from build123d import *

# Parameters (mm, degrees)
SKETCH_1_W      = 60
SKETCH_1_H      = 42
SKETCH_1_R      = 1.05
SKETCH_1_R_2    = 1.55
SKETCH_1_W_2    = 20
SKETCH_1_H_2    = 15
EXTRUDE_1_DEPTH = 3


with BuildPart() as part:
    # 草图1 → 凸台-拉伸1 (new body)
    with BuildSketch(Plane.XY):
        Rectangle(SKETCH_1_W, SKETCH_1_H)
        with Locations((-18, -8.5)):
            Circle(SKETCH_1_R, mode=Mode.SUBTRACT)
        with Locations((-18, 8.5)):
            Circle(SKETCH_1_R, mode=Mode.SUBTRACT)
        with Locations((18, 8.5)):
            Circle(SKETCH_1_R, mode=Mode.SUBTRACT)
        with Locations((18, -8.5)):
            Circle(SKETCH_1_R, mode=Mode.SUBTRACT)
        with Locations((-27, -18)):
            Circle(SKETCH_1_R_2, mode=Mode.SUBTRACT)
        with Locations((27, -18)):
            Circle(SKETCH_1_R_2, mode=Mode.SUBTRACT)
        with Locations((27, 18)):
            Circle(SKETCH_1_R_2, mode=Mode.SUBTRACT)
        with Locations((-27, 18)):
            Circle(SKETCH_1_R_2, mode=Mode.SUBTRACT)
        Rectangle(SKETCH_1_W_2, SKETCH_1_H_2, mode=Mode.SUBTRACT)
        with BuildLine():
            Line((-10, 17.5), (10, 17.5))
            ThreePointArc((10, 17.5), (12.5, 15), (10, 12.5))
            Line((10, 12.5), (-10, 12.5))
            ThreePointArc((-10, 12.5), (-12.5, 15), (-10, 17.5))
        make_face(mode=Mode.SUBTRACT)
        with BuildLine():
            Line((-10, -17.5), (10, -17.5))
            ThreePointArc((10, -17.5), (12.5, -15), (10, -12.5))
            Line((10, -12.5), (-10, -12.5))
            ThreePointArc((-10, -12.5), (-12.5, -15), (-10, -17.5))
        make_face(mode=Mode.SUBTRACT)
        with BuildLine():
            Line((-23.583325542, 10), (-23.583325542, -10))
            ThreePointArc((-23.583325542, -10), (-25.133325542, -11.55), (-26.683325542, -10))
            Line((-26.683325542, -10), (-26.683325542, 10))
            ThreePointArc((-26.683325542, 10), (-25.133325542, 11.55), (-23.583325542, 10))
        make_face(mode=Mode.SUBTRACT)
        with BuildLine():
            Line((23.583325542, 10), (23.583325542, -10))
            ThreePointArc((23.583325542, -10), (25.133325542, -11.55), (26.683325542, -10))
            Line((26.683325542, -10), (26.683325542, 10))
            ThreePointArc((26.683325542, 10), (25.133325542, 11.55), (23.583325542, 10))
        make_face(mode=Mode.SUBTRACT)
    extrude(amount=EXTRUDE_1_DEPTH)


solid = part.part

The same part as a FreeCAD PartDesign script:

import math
import FreeCAD as App
import Part
import Sketcher

V = App.Vector
Q = App.Units.Quantity

doc = App.newDocument("Part")
body = doc.addObject("PartDesign::Body", "Body")

# Sketch on XY plane
sketch1 = doc.addObject("Sketcher::SketchObject", "Sketch")
body.addObject(sketch1)
sketch1.AttachmentSupport = (doc.XY_Plane, [""])
sketch1.MapMode = "FlatFace"
sketch1.addGeometry(Part.LineSegment(V(-30, 21, 0), V(-30, -21, 0)), False)
sketch1.addGeometry(Part.LineSegment(V(-30, -21, 0), V(30, -21, 0)), False)
sketch1.addGeometry(Part.LineSegment(V(30, -21, 0), V(30, 21, 0)), False)
sketch1.addGeometry(Part.LineSegment(V(30, 21, 0), V(-30, 21, 0)), False)
sketch1.addGeometry(Part.Circle(V(-27, -18, 0), V(0, 0, 1), 1.6), False)
sketch1.addGeometry(Part.Circle(V(-18, -8.5, 0), V(0, 0, 1), 1.1), False)
sketch1.addGeometry(Part.LineSegment(V(10, -17.5, 0), V(-10, -17.5, 0)), False)
sketch1.addGeometry(Part.ArcOfCircle(Part.Circle(V(-10, -15, 0), V(0, 0, 1), 2.5), math.radians(90), math.radians(270)), False)
sketch1.addGeometry(Part.LineSegment(V(-10, -12.5, 0), V(10, -12.5, 0)), False)
sketch1.addGeometry(Part.ArcOfCircle(Part.Circle(V(10, -15, 0), V(0, 0, 1), 2.5), math.radians(-90), math.radians(90)), False)
sketch1.addGeometry(Part.Circle(V(27, -18, 0), V(0, 0, 1), 1.6), False)
sketch1.addGeometry(Part.Circle(V(18, -8.5, 0), V(0, 0, 1), 1.1), False)
sketch1.addGeometry(Part.ArcOfCircle(Part.Circle(V(-25.1, 10, 0), V(0, 0, 1), 1.6), math.radians(0), math.radians(180)), False)
sketch1.addGeometry(Part.LineSegment(V(-23.6, 10, 0), V(-23.6, -10, 0)), False)
sketch1.addGeometry(Part.ArcOfCircle(Part.Circle(V(-25.1, -10, 0), V(0, 0, 1), 1.6), math.radians(180), math.radians(360)), False)
sketch1.addGeometry(Part.LineSegment(V(-26.7, -10, 0), V(-26.7, 10, 0)), False)
sketch1.addGeometry(Part.Circle(V(-18, 8.5, 0), V(0, 0, 1), 1.1), False)
sketch1.addGeometry(Part.Circle(V(-27, 18, 0), V(0, 0, 1), 1.6), False)
sketch1.addGeometry(Part.LineSegment(V(10, -7.5, 0), V(-10, -7.5, 0)), False)
sketch1.addGeometry(Part.LineSegment(V(-10, -7.5, 0), V(-10, 7.5, 0)), False)
sketch1.addGeometry(Part.LineSegment(V(-10, 7.5, 0), V(10, 7.5, 0)), False)
sketch1.addGeometry(Part.LineSegment(V(10, 7.5, 0), V(10, -7.5, 0)), False)
sketch1.addGeometry(Part.LineSegment(V(23.6, -10, 0), V(23.6, 10, 0)), False)
sketch1.addGeometry(Part.ArcOfCircle(Part.Circle(V(25.1, 10, 0), V(0, 0, 1), 1.6), math.radians(0), math.radians(180)), False)
sketch1.addGeometry(Part.LineSegment(V(26.7, 10, 0), V(26.7, -10, 0)), False)
sketch1.addGeometry(Part.ArcOfCircle(Part.Circle(V(25.1, -10, 0), V(0, 0, 1), 1.6), math.radians(180), math.radians(360)), False)
sketch1.addGeometry(Part.Circle(V(18, 8.5, 0), V(0, 0, 1), 1.1), False)
sketch1.addGeometry(Part.ArcOfCircle(Part.Circle(V(-10, 15, 0), V(0, 0, 1), 2.5), math.radians(90), math.radians(270)), False)
sketch1.addGeometry(Part.LineSegment(V(-10, 17.5, 0), V(10, 17.5, 0)), False)
sketch1.addGeometry(Part.ArcOfCircle(Part.Circle(V(10, 15, 0), V(0, 0, 1), 2.5), math.radians(-90), math.radians(90)), False)
sketch1.addGeometry(Part.LineSegment(V(10, 12.5, 0), V(-10, 12.5, 0)), False)
sketch1.addGeometry(Part.Circle(V(27, 18, 0), V(0, 0, 1), 1.6), False)
sketch1.addConstraint(Sketcher.Constraint("Coincident", 0, 2, 1, 1))
sketch1.addConstraint(Sketcher.Constraint("Coincident", 1, 2, 2, 1))
sketch1.addConstraint(Sketcher.Constraint("Coincident", 2, 2, 3, 1))
sketch1.addConstraint(Sketcher.Constraint("Coincident", 3, 2, 0, 1))
sketch1.addConstraint(Sketcher.Constraint("Tangent", 6, 2, 7, 2))
sketch1.addConstraint(Sketcher.Constraint("Tangent", 7, 1, 8, 1))
sketch1.addConstraint(Sketcher.Constraint("Tangent", 8, 2, 9, 2))
sketch1.addConstraint(Sketcher.Constraint("Tangent", 9, 1, 6, 1))
sketch1.addConstraint(Sketcher.Constraint("Tangent", 12, 1, 13, 1))
sketch1.addConstraint(Sketcher.Constraint("Tangent", 13, 2, 14, 2))
sketch1.addConstraint(Sketcher.Constraint("Tangent", 14, 1, 15, 1))
sketch1.addConstraint(Sketcher.Constraint("Tangent", 15, 2, 12, 2))
sketch1.addConstraint(Sketcher.Constraint("Coincident", 18, 2, 19, 1))
sketch1.addConstraint(Sketcher.Constraint("Coincident", 19, 2, 20, 1))
sketch1.addConstraint(Sketcher.Constraint("Coincident", 20, 2, 21, 1))
sketch1.addConstraint(Sketcher.Constraint("Coincident", 21, 2, 18, 1))
sketch1.addConstraint(Sketcher.Constraint("Tangent", 22, 2, 23, 2))
sketch1.addConstraint(Sketcher.Constraint("Tangent", 23, 1, 24, 1))
sketch1.addConstraint(Sketcher.Constraint("Tangent", 24, 2, 25, 2))
sketch1.addConstraint(Sketcher.Constraint("Tangent", 25, 1, 22, 1))
sketch1.addConstraint(Sketcher.Constraint("Tangent", 27, 1, 28, 1))
sketch1.addConstraint(Sketcher.Constraint("Tangent", 28, 2, 29, 2))
sketch1.addConstraint(Sketcher.Constraint("Tangent", 29, 1, 30, 1))
sketch1.addConstraint(Sketcher.Constraint("Tangent", 30, 2, 27, 2))
sketch1.addConstraint(Sketcher.Constraint("Vertical", 0))
sketch1.addConstraint(Sketcher.Constraint("Horizontal", 1))
sketch1.addConstraint(Sketcher.Constraint("Vertical", 2))
sketch1.addConstraint(Sketcher.Constraint("Horizontal", 3))
sketch1.addConstraint(Sketcher.Constraint("Horizontal", 6))
sketch1.addConstraint(Sketcher.Constraint("Horizontal", 8))
sketch1.addConstraint(Sketcher.Constraint("Vertical", 13))
sketch1.addConstraint(Sketcher.Constraint("Vertical", 15))
sketch1.addConstraint(Sketcher.Constraint("Horizontal", 18))
sketch1.addConstraint(Sketcher.Constraint("Vertical", 19))
sketch1.addConstraint(Sketcher.Constraint("Horizontal", 20))
sketch1.addConstraint(Sketcher.Constraint("Vertical", 21))
sketch1.addConstraint(Sketcher.Constraint("Vertical", 22))
sketch1.addConstraint(Sketcher.Constraint("Vertical", 24))
sketch1.addConstraint(Sketcher.Constraint("Horizontal", 28))
sketch1.addConstraint(Sketcher.Constraint("Horizontal", 30))
sketch1.addConstraint(Sketcher.Constraint("Equal", 4, 10))
sketch1.addConstraint(Sketcher.Constraint("Equal", 5, 11))
sketch1.addConstraint(Sketcher.Constraint("Equal", 10, 12))
sketch1.addConstraint(Sketcher.Constraint("Equal", 11, 16))
sketch1.addConstraint(Sketcher.Constraint("Equal", 14, 17))
sketch1.addConstraint(Sketcher.Constraint("Equal", 17, 23))
sketch1.addConstraint(Sketcher.Constraint("Equal", 16, 26))
sketch1.addConstraint(Sketcher.Constraint("Equal", 9, 27))
sketch1.addConstraint(Sketcher.Constraint("Equal", 25, 31))
sketch1.addConstraint(Sketcher.Constraint("Symmetric", 11, 3, 16, 3, -1, 1))
sketch1.addConstraint(Sketcher.Constraint("Symmetric", 10, 3, 17, 3, -1, 1))
sketch1.addConstraint(Sketcher.Constraint("Symmetric", 14, 3, 23, 3, -1, 1))
sketch1.addConstraint(Sketcher.Constraint("Symmetric", 5, 3, 26, 3, -1, 1))
sketch1.addConstraint(Sketcher.Constraint("Symmetric", 9, 3, 27, 3, -1, 1))
sketch1.addConstraint(Sketcher.Constraint("Symmetric", 4, 3, 31, 3, -1, 1))
sketch1.addConstraint(Sketcher.Constraint("Symmetric", 0, 2, 2, 2, -1, 1))
sketch1.addConstraint(Sketcher.Constraint("Symmetric", 18, 2, 20, 2, -1, 1))
sketch1.addConstraint(Sketcher.Constraint("Symmetric", 4, 3, 10, 3, -2))
sketch1.addConstraint(Sketcher.Constraint("Symmetric", 5, 3, 11, 3, -2))
sketch1.addConstraint(Sketcher.Constraint("Horizontal", 12, 3, 23, 3))
sketch1.addConstraint(Sketcher.Constraint("Horizontal", 14, 3, 25, 3))
sketch1.addConstraint(Sketcher.Constraint("Vertical", 7, 3, 27, 3))
sketch1.addConstraint(Sketcher.Constraint("Vertical", 9, 3, 29, 3))
sketch1.addConstraint(Sketcher.Constraint("Vertical", 7, 1, 18, 2))
sketch1.addConstraint(Sketcher.Constraint("Equal", 30, 13))
sketch1.addConstraint(Sketcher.Constraint("Diameter", 4, Q("3.1 mm")))
sketch1.addConstraint(Sketcher.Constraint("Diameter", 5, Q("2.1 mm")))
sketch1.addConstraint(Sketcher.Constraint("Radius", 7, Q("2.5 mm")))
sketch1.addConstraint(Sketcher.Constraint("DistanceX", 1, 1, 1, 2, Q("60 mm")))
sketch1.addConstraint(Sketcher.Constraint("DistanceX", 6, 2, 6, 1, Q("20 mm")))
sketch1.addConstraint(Sketcher.Constraint("DistanceY", 0, 2, 0, 1, Q("42 mm")))
sketch1.addConstraint(Sketcher.Constraint("DistanceY", 19, 1, 19, 2, Q("15 mm")))
sketch1.addConstraint(Sketcher.Constraint("DistanceX", 4, 3, -1, 1, Q("27 mm")))
sketch1.addConstraint(Sketcher.Constraint("DistanceY", 4, 3, -1, 1, Q("18 mm")))
sketch1.addConstraint(Sketcher.Constraint("DistanceX", 5, 3, -1, 1, Q("18 mm")))
sketch1.addConstraint(Sketcher.Constraint("DistanceY", 7, 3, -1, 1, Q("15 mm")))
sketch1.addConstraint(Sketcher.Constraint("DistanceY", 5, 3, 16, 3, Q("17 mm")))
sketch1.addConstraint(Sketcher.Constraint("DistanceX", 12, 3, -1, 1, Q("25.133326 mm")))
pad1 = doc.addObject("PartDesign::Pad", "Pad")
body.addObject(pad1)
pad1.Profile = sketch1
pad1.Length = 3

doc.recompute()
